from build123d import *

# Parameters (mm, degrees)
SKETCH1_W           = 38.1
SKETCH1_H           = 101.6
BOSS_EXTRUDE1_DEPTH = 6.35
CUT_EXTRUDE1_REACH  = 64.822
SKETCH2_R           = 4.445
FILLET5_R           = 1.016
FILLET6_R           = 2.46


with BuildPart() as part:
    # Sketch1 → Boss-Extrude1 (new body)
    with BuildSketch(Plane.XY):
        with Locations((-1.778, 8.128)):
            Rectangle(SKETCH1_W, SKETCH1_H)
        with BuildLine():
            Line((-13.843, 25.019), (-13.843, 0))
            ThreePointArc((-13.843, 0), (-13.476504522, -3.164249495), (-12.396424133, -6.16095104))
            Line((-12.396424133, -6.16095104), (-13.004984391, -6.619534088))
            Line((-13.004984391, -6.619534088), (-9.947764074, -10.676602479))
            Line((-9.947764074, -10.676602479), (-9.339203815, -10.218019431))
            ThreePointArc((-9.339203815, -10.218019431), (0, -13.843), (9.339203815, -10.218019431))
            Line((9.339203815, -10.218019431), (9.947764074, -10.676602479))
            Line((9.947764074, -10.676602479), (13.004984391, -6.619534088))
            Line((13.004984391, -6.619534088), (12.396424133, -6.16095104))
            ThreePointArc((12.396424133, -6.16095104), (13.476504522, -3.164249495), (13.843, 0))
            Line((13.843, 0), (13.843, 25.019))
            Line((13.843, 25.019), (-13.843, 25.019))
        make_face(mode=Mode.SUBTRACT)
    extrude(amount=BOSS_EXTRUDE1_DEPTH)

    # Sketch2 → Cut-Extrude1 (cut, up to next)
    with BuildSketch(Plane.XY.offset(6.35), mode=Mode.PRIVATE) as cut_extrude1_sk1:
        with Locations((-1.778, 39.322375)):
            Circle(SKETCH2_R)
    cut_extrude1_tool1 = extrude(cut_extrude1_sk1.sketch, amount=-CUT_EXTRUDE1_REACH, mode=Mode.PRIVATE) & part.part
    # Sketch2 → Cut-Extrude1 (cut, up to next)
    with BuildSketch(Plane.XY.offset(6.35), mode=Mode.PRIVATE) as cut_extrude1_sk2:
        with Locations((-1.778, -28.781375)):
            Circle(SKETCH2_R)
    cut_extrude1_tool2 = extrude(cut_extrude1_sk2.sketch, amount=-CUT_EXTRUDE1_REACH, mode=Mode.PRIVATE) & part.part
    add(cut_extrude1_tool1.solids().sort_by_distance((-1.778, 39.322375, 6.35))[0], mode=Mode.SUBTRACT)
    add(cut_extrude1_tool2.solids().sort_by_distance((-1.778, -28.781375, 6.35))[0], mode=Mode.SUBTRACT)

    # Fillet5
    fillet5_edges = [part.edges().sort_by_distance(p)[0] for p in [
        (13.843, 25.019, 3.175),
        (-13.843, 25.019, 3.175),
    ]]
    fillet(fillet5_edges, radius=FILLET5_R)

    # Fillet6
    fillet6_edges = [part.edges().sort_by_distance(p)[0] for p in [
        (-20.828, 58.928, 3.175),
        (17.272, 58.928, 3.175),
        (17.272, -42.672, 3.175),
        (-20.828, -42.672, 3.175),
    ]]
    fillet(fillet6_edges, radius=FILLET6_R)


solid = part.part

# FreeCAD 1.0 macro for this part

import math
import FreeCAD as App
import Part
import Sketcher
from FreeCAD import Vector
Q = App.Units.Quantity


def edges_at(feature, points):
    """Names of the edges that pass closest to the given points."""
    edges = feature.Shape.Edges
    near = lambda p: min(range(len(edges)), key=lambda i: edges[i].distToShape(Part.Vertex(*p))[0])
    return sorted({f"Edge{near(p) + 1}" for p in points})

doc = App.newDocument("Part")
body = doc.addObject("PartDesign::Body", "Body")

sketch1 = body.newObject("Sketcher::SketchObject", "Sketch")
sketch1.AttachmentSupport = (doc.getObject("XY_Plane"), [""])
sketch1.MapMode = "FlatFace"
sketch1.addGeometry(Part.LineSegment(Vector(-20.8, 58.9, 0), Vector(-20.8, -42.7, 0)), False)
sketch1.addGeometry(Part.LineSegment(Vector(-20.8, -42.7, 0), Vector(17.3, -42.7, 0)), False)
sketch1.addGeometry(Part.LineSegment(Vector(17.3, -42.7, 0), Vector(17.3, 58.9, 0)), False)
sketch1.addGeometry(Part.LineSegment(Vector(17.3, 58.9, 0), Vector(-20.8, 58.9, 0)), False)
sketch1.addGeometry(Part.LineSegment(Vector(-13.8, 0, 0), Vector(-13.8, 25, 0)), False)
sketch1.addGeometry(Part.LineSegment(Vector(-13.8, 25, 0), Vector(13.8, 25, 0)), False)
sketch1.addGeometry(Part.LineSegment(Vector(13.8, 25, 0), Vector(13.8, 0, 0)), False)
sketch1.addGeometry(Part.ArcOfCircle(Part.Circle(Vector(0, 0, 0), Vector(0, 0, 1), 13.8), math.radians(-26), math.radians(0)), False)
sketch1.addGeometry(Part.LineSegment(Vector(12.4, -6.2, 0), Vector(13, -6.6, 0)), False)
sketch1.addGeometry(Part.LineSegment(Vector(13, -6.6, 0), Vector(9.9, -10.7, 0)), False)
sketch1.addGeometry(Part.LineSegment(Vector(9.9, -10.7, 0), Vector(9.3, -10.2, 0)), False)
sketch1.addGeometry(Part.ArcOfCircle(Part.Circle(Vector(0, 0, 0), Vector(0, 0, 1), 13.8), math.radians(-132), math.radians(-48)), False)
sketch1.addGeometry(Part.LineSegment(Vector(-9.3, -10.2, 0), Vector(-9.9, -10.7, 0)), False)
sketch1.addGeometry(Part.LineSegment(Vector(-9.9, -10.7, 0), Vector(-13, -6.6, 0)), False)
sketch1.addGeometry(Part.LineSegment(Vector(-13, -6.6, 0), Vector(-12.4, -6.2, 0)), False)
sketch1.addGeometry(Part.ArcOfCircle(Part.Circle(Vector(0, 0, 0), Vector(0, 0, 1), 13.8), math.radians(-180), math.radians(-154)), False)
sketch1.addConstraint(Sketcher.Constraint("Coincident", 0, 2, 1, 1))
sketch1.addConstraint(Sketcher.Constraint("Coincident", 1, 2, 2, 1))
sketch1.addConstraint(Sketcher.Constraint("Coincident", 2, 2, 3, 1))
sketch1.addConstraint(Sketcher.Constraint("Coincident", 3, 2, 0, 1))
sketch1.addConstraint(Sketcher.Constraint("Coincident", 4, 2, 5, 1))
sketch1.addConstraint(Sketcher.Constraint("Coincident", 5, 2, 6, 1))
sketch1.addConstraint(Sketcher.Constraint("Tangent", 6, 2, 7, 2))
sketch1.addConstraint(Sketcher.Constraint("Coincident", 7, 1, 8, 1))
sketch1.addConstraint(Sketcher.Constraint("Coincident", 8, 2, 9, 1))
sketch1.addConstraint(Sketcher.Constraint("Coincident", 9, 2, 10, 1))
sketch1.addConstraint(Sketcher.Constraint("Coincident", 10, 2, 11, 2))
sketch1.addConstraint(Sketcher.Constraint("Coincident", 11, 1, 12, 1))
sketch1.addConstraint(Sketcher.Constraint("Coincident", 12, 2, 13, 1))
sketch1.addConstraint(Sketcher.Constraint("Coincident", 13, 2, 14, 1))
sketch1.addConstraint(Sketcher.Constraint("Coincident", 14, 2, 15, 2))
sketch1.addConstraint(Sketcher.Constraint("Tangent", 15, 1, 4, 1))
sketch1.addConstraint(Sketcher.Constraint("Vertical", 0))
sketch1.addConstraint(Sketcher.Constraint("Horizontal", 1))
sketch1.addConstraint(Sketcher.Constraint("Vertical", 2))
sketch1.addConstraint(Sketcher.Constraint("Horizontal", 3))
sketch1.addConstraint(Sketcher.Constraint("Vertical", 4))
sketch1.addConstraint(Sketcher.Constraint("Horizontal", 5))
sketch1.addConstraint(Sketcher.Constraint("Vertical", 6))
sketch1.addConstraint(Sketcher.Constraint("Coincident", 7, 3, -1, 1))
sketch1.addConstraint(Sketcher.Constraint("Coincident", 11, 3, -1, 1))
sketch1.addConstraint(Sketcher.Constraint("Coincident", 15, 3, -1, 1))
sketch1.addConstraint(Sketcher.Constraint("Equal", 7, 11))
sketch1.addConstraint(Sketcher.Constraint("Equal", 11, 15))
sketch1.addConstraint(Sketcher.Constraint("Symmetric", 9, 2, 12, 2, -2))
sketch1.addConstraint(Sketcher.Constraint("Symmetric", 8, 2, 13, 2, -2))
sketch1.addConstraint(Sketcher.Constraint("Perpendicular", 8, 9))
sketch1.addConstraint(Sketcher.Constraint("Perpendicular", 9, 10))
sketch1.addConstraint(Sketcher.Constraint("Perpendicular", 12, 13))
sketch1.addConstraint(Sketcher.Constraint("Perpendicular", 13, 14))
sketch1.addConstraint(Sketcher.Constraint("Equal", 8, 10))
sketch1.addConstraint(Sketcher.Constraint("DistanceY", 0, 2, 0, 1, Q("4 in")))
sketch1.addConstraint(Sketcher.Constraint("DistanceX", 1, 1, 1, 2, Q("1.5 in")))
sketch1.addConstraint(Sketcher.Constraint("Angle", 8, Q("-37 deg")))
sketch1.addConstraint(Sketcher.Constraint("Radius", 7, Q("0.545 in")))
sketch1.addConstraint(Sketcher.Constraint("Distance", 9, Q("0.2 in")))
sketch1.addConstraint(Sketcher.Constraint("Distance", 8, Q("0.03 in")))
sketch1.addConstraint(Sketcher.Constraint("DistanceY", 4, 1, 4, 2, Q("0.985 in")))
sketch1.addConstraint(Sketcher.Constraint("DistanceX", 0, 2, -1, 1, Q("0.82 in")))
sketch1.addConstraint(Sketcher.Constraint("DistanceY", 0, 2, -1, 1, Q("1.68 in")))
pad1 = body.newObject("PartDesign::Pad", "Pad")
pad1.Profile = sketch1
pad1.Length = Q("0.25 in")

sketch2 = body.newObject("Sketcher::SketchObject", "Sketch001")
sketch2.AttachmentSupport = (doc.getObject("XY_Plane"), [""])
sketch2.MapMode = "FlatFace"
sketch2.AttachmentOffset = App.Placement(Vector(0, 0, 0.25 * 25.4), App.Rotation())
sketch2.addGeometry(Part.Circle(Vector(-1.8, 39.3, 0), Vector(0, 0, 1), 4.4), False)
sketch2.addConstraint(Sketcher.Constraint("Diameter", 0, Q("0.35 in")))
sketch2.addConstraint(Sketcher.Constraint("DistanceX", 0, 3, -1, 1, Q("0.07 in")))
sketch2.addConstraint(Sketcher.Constraint("DistanceY", -1, 1, 0, 3, Q("39.322375 mm")))
pocket1 = body.newObject("PartDesign::Pocket", "Pocket")
pocket1.Profile = sketch2
pocket1.Type = "UpToFirst"

sketch3 = body.newObject("Sketcher::SketchObject", "Sketch002")
sketch3.AttachmentSupport = (doc.getObject("XY_Plane"), [""])
sketch3.MapMode = "FlatFace"
sketch3.AttachmentOffset = App.Placement(Vector(0, 0, 0.25 * 25.4), App.Rotation())
sketch3.addGeometry(Part.Circle(Vector(-1.8, -28.8, 0), Vector(0, 0, 1), 4.4), False)
sketch3.addConstraint(Sketcher.Constraint("Diameter", 0, Q("0.35 in")))
sketch3.addConstraint(Sketcher.Constraint("DistanceX", 0, 3, -1, 1, Q("0.07 in")))
sketch3.addConstraint(Sketcher.Constraint("DistanceY", 0, 3, -1, 1, Q("28.781375 mm")))
pocket2 = body.newObject("PartDesign::Pocket", "Pocket001")
pocket2.Profile = sketch3
pocket2.Type = "UpToFirst"
doc.recompute()

fillet = body.newObject("PartDesign::Fillet", "Fillet")
fillet.Base = (pocket2, edges_at(pocket2, [(13.843, 25.019, 3.175), (-13.843, 25.019, 3.175)]))
fillet.Radius = Q("0.04 in")
doc.recompute()

fillet2 = body.newObject("PartDesign::Fillet", "Fillet001")
fillet2.Base = (fillet, edges_at(fillet, [
    (-20.828, 58.928, 3.175),
    (17.272, 58.928, 3.175),
    (17.272, -42.672, 3.175),
    (-20.828, -42.672, 3.175),
]))
fillet2.Radius = 2.46

doc.recompute()
